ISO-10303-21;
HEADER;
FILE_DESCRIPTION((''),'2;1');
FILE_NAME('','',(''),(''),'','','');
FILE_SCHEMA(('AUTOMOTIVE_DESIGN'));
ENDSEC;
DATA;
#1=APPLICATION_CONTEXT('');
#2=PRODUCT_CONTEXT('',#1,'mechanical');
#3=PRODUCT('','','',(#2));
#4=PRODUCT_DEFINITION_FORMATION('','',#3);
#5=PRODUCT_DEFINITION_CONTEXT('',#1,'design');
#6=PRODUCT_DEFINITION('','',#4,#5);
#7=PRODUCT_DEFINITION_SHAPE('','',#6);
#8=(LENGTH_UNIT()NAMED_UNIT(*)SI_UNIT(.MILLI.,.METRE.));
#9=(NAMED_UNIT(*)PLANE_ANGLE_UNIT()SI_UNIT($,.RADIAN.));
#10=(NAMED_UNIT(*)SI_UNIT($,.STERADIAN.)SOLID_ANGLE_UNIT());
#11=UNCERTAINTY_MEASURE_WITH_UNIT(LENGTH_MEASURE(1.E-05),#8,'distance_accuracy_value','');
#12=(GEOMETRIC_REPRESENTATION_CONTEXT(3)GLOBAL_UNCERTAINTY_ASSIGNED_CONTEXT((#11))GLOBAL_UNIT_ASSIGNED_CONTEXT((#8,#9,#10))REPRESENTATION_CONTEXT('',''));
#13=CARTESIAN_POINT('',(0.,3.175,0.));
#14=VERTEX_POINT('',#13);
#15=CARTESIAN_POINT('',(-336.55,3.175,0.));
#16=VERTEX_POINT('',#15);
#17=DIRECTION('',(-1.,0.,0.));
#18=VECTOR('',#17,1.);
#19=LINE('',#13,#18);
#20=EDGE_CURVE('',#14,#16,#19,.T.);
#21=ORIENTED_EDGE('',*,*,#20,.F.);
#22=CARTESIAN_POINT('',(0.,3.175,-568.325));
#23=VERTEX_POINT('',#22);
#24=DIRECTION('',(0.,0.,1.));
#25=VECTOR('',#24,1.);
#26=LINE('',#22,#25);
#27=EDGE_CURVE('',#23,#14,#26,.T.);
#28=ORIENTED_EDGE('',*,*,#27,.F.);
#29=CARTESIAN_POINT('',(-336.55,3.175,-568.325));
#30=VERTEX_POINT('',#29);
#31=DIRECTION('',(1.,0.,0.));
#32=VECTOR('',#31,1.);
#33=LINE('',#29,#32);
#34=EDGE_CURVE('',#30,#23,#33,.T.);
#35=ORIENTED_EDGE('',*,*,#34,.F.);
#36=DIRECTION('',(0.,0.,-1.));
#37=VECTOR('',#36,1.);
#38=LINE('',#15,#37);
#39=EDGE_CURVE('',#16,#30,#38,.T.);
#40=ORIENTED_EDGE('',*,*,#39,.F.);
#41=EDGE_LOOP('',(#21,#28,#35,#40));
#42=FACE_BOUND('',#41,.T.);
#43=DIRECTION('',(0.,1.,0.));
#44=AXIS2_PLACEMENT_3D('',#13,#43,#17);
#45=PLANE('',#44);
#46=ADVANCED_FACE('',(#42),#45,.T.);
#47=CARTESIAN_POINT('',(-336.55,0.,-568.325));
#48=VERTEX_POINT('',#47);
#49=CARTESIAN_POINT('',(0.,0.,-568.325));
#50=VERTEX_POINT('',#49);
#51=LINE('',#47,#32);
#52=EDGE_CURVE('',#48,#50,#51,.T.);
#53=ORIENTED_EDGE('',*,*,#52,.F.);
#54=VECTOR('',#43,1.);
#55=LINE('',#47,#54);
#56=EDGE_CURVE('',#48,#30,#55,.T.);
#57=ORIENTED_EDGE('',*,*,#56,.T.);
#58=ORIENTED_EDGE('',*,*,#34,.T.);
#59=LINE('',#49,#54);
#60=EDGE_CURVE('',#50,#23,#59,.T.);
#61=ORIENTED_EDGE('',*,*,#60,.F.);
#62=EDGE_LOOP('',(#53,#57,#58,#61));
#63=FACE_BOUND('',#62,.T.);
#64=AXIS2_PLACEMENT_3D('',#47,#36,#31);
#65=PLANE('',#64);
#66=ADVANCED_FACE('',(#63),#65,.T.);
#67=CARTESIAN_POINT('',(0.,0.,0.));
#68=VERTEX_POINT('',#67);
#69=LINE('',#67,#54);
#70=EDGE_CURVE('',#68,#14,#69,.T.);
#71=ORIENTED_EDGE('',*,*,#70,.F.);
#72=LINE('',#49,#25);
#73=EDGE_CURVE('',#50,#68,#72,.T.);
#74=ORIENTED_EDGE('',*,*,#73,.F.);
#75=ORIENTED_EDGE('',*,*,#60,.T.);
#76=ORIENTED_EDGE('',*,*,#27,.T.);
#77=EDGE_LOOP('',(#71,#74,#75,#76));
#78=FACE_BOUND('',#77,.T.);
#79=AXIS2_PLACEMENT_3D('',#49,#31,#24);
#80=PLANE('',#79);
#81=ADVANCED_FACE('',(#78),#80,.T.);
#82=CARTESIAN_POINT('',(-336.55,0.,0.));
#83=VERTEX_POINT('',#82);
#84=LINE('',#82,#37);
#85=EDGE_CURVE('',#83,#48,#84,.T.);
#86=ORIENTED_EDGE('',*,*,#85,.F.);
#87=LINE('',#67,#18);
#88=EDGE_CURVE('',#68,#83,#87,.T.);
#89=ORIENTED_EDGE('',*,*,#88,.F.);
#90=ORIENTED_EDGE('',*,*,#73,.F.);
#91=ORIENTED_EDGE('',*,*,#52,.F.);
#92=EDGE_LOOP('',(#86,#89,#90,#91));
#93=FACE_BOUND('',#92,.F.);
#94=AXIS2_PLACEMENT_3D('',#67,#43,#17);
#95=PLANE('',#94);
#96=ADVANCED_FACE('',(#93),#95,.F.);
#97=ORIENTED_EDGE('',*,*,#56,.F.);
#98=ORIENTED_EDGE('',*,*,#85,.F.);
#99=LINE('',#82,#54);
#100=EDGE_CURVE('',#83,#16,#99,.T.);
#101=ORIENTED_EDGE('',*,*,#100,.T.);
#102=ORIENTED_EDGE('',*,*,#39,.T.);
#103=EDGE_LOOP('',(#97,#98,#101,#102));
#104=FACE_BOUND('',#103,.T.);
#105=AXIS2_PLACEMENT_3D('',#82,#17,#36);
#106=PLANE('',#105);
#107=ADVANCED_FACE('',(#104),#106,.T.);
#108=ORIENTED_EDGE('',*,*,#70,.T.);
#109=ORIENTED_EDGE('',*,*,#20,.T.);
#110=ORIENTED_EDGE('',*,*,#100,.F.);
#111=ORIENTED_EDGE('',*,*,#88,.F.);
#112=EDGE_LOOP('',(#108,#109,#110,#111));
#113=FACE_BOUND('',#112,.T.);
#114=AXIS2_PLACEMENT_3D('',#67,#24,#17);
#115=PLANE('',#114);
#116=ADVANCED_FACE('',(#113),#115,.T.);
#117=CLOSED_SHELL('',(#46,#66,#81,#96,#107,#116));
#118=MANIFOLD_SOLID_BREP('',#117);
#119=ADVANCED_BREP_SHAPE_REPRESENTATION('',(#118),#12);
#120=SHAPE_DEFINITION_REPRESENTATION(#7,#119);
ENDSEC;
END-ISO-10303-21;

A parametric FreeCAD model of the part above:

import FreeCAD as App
import Part
import Sketcher
Q = App.Units.Quantity

doc = App.newDocument("Part")
params = doc.addObject("Spreadsheet::Sheet", "Params")
for row, (alias, value) in enumerate([
    ("sketch1_width", "13.25 in"),
    ("sketch1_height", "22.375 in"),
    ("pad1_length", "0.125 in"),
], start=1):
    params.set(f"A{row}", alias)
    params.set(f"B{row}", "=" + value)
    params.setAlias(f"B{row}", alias)

body = doc.addObject("PartDesign::Body", "Body")

sketch1 = body.newObject("Sketcher::SketchObject", "Sketch")
sketch1.AttachmentSupport = (doc.getObject("XZ_Plane"), [""])
sketch1.MapMode = "FlatFace"
sketch1.addGeometry([
    Part.LineSegment(App.Vector(-337, 0, 0), App.Vector(0, 0, 0)),
    Part.LineSegment(App.Vector(0, 0, 0), App.Vector(0, -568, 0)),
    Part.LineSegment(App.Vector(0, -568, 0), App.Vector(-337, -568, 0)),
    Part.LineSegment(App.Vector(-337, -568, 0), App.Vector(-337, 0, 0)),
], False)
sketch1.addConstraint([
    Sketcher.Constraint("Coincident", 0, 2, 1, 1),
    Sketcher.Constraint("Coincident", 1, 2, 2, 1),
    Sketcher.Constraint("Coincident", 2, 2, 3, 1),
    Sketcher.Constraint("Coincident", 3, 2, 0, 1),
    Sketcher.Constraint("Horizontal", 0),
    Sketcher.Constraint("Vertical", 1),
    Sketcher.Constraint("Horizontal", 2),
    Sketcher.Constraint("Vertical", 3),
    Sketcher.Constraint("Coincident", 0, 2, -1, 1),
    Sketcher.Constraint("DistanceX", 0, 1, 0, 2, Q("13.25 in")),
    Sketcher.Constraint("DistanceY", 1, 2, 1, 1, Q("22.375 in")),
])
sketch1.setExpression("Constraints[9]", "Params.sketch1_width")
sketch1.setExpression("Constraints[10]", "Params.sketch1_height")
pad1 = body.newObject("PartDesign::Pad", "Pad")
pad1.Profile = sketch1
pad1.setExpression("Length", "Params.pad1_length")
pad1.Reversed = True

doc.recompute()
